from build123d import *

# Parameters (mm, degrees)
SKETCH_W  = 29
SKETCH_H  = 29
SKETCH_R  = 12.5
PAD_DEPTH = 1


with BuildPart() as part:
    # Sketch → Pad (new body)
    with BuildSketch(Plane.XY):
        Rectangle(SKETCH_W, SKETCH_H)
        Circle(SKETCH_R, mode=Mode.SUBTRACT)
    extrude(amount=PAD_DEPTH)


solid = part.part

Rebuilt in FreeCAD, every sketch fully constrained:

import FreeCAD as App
import Part
import Sketcher
from FreeCAD import Vector
Q = App.Units.Quantity


def add_polygon(sketch, points):
    """Adds a closed chain of lines whose ends are joined by coincident constraints."""
    first, n = sketch.GeometryCount, len(points)
    for a, b in zip(points, points[1:] + points[:1]):
        sketch.addGeometry(Part.LineSegment(App.Vector(*a, 0), App.Vector(*b, 0)), False)
    for i in range(n):
        sketch.addConstraint(Sketcher.Constraint("Coincident", first + i, 2, first + (i + 1) % n, 1))

doc = App.newDocument("Part")
body = doc.addObject("PartDesign::Body", "Body")

# Sketch on XY plane
sketch1 = body.newObject("Sketcher::SketchObject", "Sketch")
sketch1.AttachmentSupport = (doc.getObject("XY_Plane"), [""])
sketch1.MapMode = "FlatFace"
add_polygon(sketch1, [(-14, 14), (-14, -14), (14, -14), (14, 14)])  # lines 0-3
sketch1.addGeometry(Part.Circle(Vector(0, 0, 0), Vector(0, 0, 1), 12), False)  # 4
sketch1.addConstraint([
    Sketcher.Constraint("Vertical", 0),
    Sketcher.Constraint("Horizontal", 1),
    Sketcher.Constraint("Vertical", 2),
    Sketcher.Constraint("Horizontal", 3),
    Sketcher.Constraint("Coincident", 4, 3, -1, 1),
    Sketcher.Constraint("Symmetric", 0, 2, 2, 2, -1, 1),
    Sketcher.Constraint("Equal", 3, 0),
    Sketcher.Constraint("Diameter", 4, Q("25 mm")),
    Sketcher.Constraint("DistanceX", 1, 1, 1, 2, Q("29 mm")),
])
pad1 = body.newObject("PartDesign::Pad", "Pad")
pad1.Profile = sketch1
pad1.Length = 1

doc.recompute()
